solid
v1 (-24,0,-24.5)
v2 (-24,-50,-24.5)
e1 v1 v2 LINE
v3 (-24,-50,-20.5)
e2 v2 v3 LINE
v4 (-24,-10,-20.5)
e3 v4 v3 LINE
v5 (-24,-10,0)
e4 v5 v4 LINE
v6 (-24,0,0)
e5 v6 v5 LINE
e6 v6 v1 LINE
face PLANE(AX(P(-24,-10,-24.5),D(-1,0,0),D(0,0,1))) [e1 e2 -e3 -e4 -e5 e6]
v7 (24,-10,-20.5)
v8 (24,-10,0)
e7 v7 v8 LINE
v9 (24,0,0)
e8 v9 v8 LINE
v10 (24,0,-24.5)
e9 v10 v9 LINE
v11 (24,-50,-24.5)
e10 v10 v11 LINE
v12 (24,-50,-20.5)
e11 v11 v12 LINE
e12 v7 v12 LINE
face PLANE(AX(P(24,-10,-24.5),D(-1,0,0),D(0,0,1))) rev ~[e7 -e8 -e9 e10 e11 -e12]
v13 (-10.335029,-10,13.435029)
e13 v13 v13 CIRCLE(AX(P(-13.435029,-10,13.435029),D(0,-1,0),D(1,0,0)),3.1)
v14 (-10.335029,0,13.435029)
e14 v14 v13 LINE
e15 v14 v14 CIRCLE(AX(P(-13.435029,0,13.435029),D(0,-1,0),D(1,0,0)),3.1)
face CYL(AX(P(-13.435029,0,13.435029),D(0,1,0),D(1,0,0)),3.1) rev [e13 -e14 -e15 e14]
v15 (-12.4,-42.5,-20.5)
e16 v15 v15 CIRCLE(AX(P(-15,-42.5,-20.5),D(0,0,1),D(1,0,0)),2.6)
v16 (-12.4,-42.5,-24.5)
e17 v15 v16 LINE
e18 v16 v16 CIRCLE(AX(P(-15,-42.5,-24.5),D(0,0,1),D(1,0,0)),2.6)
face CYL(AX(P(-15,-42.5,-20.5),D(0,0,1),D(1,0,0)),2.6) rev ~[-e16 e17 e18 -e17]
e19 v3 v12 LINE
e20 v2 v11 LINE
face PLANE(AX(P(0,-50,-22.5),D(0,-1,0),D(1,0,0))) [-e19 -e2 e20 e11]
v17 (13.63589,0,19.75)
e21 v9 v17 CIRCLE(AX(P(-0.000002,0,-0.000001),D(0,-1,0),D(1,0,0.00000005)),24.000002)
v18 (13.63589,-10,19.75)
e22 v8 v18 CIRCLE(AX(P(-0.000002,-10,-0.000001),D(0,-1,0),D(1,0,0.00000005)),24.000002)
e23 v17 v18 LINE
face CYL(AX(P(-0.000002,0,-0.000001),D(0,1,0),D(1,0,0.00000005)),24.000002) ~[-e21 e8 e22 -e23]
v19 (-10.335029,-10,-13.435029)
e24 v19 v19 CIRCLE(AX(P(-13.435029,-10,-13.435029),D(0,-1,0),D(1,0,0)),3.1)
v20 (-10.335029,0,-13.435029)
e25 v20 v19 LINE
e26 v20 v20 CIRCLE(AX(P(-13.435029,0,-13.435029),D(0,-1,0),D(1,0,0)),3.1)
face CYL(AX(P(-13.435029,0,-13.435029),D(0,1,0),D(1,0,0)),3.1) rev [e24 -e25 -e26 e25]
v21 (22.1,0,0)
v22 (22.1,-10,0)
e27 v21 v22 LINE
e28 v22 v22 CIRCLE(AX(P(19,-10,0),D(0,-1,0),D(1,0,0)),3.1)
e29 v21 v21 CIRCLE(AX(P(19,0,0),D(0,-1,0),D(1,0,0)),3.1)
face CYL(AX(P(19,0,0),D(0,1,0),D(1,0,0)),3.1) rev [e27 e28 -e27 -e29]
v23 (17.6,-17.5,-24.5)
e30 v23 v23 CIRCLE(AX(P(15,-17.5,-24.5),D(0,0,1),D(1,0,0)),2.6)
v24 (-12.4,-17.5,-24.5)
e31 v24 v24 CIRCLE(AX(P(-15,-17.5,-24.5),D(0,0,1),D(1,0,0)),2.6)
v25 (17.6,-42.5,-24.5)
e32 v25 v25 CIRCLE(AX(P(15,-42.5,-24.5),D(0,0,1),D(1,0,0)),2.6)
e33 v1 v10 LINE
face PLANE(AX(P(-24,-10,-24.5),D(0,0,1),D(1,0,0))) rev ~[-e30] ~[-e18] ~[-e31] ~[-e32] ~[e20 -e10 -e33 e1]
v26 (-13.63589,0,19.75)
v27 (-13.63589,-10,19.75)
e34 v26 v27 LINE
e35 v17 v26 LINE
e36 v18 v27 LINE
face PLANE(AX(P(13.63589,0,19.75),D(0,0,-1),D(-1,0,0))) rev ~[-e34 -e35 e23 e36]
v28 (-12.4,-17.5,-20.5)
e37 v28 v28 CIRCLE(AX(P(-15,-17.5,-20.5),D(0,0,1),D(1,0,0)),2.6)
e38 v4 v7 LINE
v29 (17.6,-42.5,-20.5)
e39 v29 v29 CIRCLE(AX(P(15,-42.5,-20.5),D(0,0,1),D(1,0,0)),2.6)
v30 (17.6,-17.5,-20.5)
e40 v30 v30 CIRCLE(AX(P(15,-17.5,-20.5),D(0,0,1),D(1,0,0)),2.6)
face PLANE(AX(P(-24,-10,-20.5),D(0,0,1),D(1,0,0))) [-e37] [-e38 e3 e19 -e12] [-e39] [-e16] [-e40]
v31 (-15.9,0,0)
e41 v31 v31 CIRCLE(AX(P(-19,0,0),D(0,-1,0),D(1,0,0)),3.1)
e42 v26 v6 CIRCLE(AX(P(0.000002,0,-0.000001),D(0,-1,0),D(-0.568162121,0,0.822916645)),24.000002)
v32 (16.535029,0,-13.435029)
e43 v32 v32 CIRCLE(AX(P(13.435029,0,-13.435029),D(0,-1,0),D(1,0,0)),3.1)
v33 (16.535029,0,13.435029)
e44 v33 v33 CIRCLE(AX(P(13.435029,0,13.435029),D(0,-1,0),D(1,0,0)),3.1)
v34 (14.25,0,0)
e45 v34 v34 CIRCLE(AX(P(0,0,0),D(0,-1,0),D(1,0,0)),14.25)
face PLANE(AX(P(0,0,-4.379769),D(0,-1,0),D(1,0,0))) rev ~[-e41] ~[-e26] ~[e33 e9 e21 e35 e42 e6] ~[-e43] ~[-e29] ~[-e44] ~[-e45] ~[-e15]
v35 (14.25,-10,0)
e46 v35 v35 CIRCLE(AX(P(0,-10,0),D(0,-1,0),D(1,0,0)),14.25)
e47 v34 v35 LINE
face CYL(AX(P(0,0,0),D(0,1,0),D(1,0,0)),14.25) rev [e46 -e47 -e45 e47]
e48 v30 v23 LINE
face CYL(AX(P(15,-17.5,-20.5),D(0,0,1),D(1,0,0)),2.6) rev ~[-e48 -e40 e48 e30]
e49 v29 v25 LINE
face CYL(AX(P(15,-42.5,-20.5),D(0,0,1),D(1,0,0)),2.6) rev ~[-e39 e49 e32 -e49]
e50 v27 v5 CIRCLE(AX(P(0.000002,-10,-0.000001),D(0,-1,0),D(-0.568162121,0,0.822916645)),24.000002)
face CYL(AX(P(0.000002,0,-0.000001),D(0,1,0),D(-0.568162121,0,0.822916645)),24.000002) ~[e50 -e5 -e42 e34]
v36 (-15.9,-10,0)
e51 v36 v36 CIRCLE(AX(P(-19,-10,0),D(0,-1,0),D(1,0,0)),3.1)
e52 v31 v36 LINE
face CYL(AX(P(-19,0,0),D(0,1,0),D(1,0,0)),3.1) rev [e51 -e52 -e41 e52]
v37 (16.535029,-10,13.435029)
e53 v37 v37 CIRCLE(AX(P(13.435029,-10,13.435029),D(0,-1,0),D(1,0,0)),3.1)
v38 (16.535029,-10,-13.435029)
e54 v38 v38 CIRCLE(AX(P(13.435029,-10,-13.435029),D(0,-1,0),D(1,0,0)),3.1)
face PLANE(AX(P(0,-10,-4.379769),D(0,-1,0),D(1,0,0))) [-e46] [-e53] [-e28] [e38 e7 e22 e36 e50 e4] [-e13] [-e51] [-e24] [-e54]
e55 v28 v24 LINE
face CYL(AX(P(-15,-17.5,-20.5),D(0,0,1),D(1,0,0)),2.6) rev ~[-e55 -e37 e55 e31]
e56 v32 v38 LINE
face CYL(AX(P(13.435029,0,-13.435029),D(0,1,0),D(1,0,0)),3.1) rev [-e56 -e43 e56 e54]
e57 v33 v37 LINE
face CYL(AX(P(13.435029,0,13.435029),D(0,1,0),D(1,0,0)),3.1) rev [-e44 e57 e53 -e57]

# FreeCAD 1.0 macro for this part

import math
import FreeCAD as App
import Part
import Sketcher
Q = App.Units.Quantity


def add_polygon(sketch, points):
    """Adds a closed chain of lines whose ends are joined by coincident constraints."""
    first, n = sketch.GeometryCount, len(points)
    for a, b in zip(points, points[1:] + points[:1]):
        sketch.addGeometry(Part.LineSegment(App.Vector(*a, 0), App.Vector(*b, 0)), False)
    for i in range(n):
        sketch.addConstraint(Sketcher.Constraint("Coincident", first + i, 2, first + (i + 1) % n, 1))

doc = App.newDocument("Part")
body = doc.addObject("PartDesign::Body", "Body")

# Sketch on XZ plane
sketch1 = doc.addObject("Sketcher::SketchObject", "Sketch")
body.addObject(sketch1)
sketch1.AttachmentSupport = (doc.XZ_Plane, [""])
sketch1.MapMode = "FlatFace"
sketch1.addGeometry([
    Part.LineSegment(App.Vector(13.6, 19.8, 0), App.Vector(-13.6, 19.8, 0)),  # 0
    Part.ArcOfCircle(Part.Circle(App.Vector(0, 0, 0), App.Vector(0, 0, 1), 24), math.radians(125), math.radians(180)),  # 1
    Part.LineSegment(App.Vector(-24, 0, 0), App.Vector(-24, -24.5, 0)),  # 2
    Part.LineSegment(App.Vector(-24, -24.5, 0), App.Vector(24, -24.5, 0)),  # 3
    Part.LineSegment(App.Vector(24, -24.5, 0), App.Vector(24, 0, 0)),  # 4
    Part.ArcOfCircle(Part.Circle(App.Vector(0, 0, 0), App.Vector(0, 0, 1), 24), math.radians(0), math.radians(55)),  # 5
    Part.Circle(App.Vector(-13.4, -13.4, 0), App.Vector(0, 0, 1), 3.1),  # 6
    Part.Circle(App.Vector(13.4, -13.4, 0), App.Vector(0, 0, 1), 3.1),  # 7
    Part.Circle(App.Vector(-19, 0, 0), App.Vector(0, 0, 1), 3.1),  # 8
    Part.Circle(App.Vector(-13.4, 13.4, 0), App.Vector(0, 0, 1), 3.1),  # 9
    Part.Circle(App.Vector(0, 0, 0), App.Vector(0, 0, 1), 14.2),  # 10
    Part.Circle(App.Vector(19, 0, 0), App.Vector(0, 0, 1), 3.1),  # 11
    Part.Circle(App.Vector(13.4, 13.4, 0), App.Vector(0, 0, 1), 3.1),  # 12
], False)
sketch1.addConstraint([
    Sketcher.Constraint("Coincident", 0, 2, 1, 1),
    Sketcher.Constraint("Tangent", 1, 2, 2, 1),
    Sketcher.Constraint("Coincident", 2, 2, 3, 1),
    Sketcher.Constraint("Coincident", 3, 2, 4, 1),
    Sketcher.Constraint("Tangent", 4, 2, 5, 1),
    Sketcher.Constraint("Coincident", 5, 2, 0, 1),
    Sketcher.Constraint("Horizontal", 0),
    Sketcher.Constraint("Vertical", 2),
    Sketcher.Constraint("Horizontal", 3),
    Sketcher.Constraint("Vertical", 4),
    Sketcher.Constraint("Coincident", 1, 3, -1, 1),
    Sketcher.Constraint("Coincident", 5, 3, -1, 1),
    Sketcher.Constraint("Coincident", 10, 3, -1, 1),
    Sketcher.Constraint("Equal", 1, 5),
    Sketcher.Constraint("Equal", 6, 7),
    Sketcher.Constraint("Equal", 7, 8),
    Sketcher.Constraint("Equal", 8, 9),
    Sketcher.Constraint("Equal", 9, 11),
    Sketcher.Constraint("Equal", 11, 12),
    Sketcher.Constraint("Symmetric", 7, 3, 9, 3, -1, 1),
    Sketcher.Constraint("Symmetric", 8, 3, 11, 3, -1, 1),
    Sketcher.Constraint("Symmetric", 6, 3, 12, 3, -1, 1),
    Sketcher.Constraint("Symmetric", 6, 3, 7, 3, -2),
    Sketcher.Constraint("PointOnObject", 8, 3, -1),
    Sketcher.Constraint("Diameter", 6, Q("6.2 mm")),
    Sketcher.Constraint("Diameter", 10, Q("28.5 mm")),
    Sketcher.Constraint("DistanceX", 3, 1, 3, 2, Q("48 mm")),
    Sketcher.Constraint("DistanceY", 2, 2, 2, 1, Q("24.5 mm")),
    Sketcher.Constraint("DistanceX", 8, 3, -1, 1, Q("19 mm")),
    Sketcher.Constraint("DistanceY", -1, 1, 0, 2, Q("19.75 mm")),
    Sketcher.Constraint("DistanceX", 6, 3, -1, 1, Q("13.435029 mm")),
    Sketcher.Constraint("DistanceY", 6, 3, -1, 1, Q("13.435029 mm")),
])
pad1 = doc.addObject("PartDesign::Pad", "Pad")
body.addObject(pad1)
pad1.Profile = sketch1
pad1.Length = 10

# Sketch on XZ plane
sketch2 = doc.addObject("Sketcher::SketchObject", "Sketch001")
body.addObject(sketch2)
sketch2.AttachmentSupport = (doc.XZ_Plane, [""])
sketch2.MapMode = "FlatFace"
sketch2.AttachmentOffset = App.Placement(App.Vector(0, 0, 10), App.Rotation())
add_polygon(sketch2, [(-24, -20.5), (-24, -24.5), (24, -24.5), (24, -20.5)])  # lines 0-3
sketch2.addConstraint([
    Sketcher.Constraint("Vertical", 0),
    Sketcher.Constraint("Horizontal", 1),
    Sketcher.Constraint("Vertical", 2),
    Sketcher.Constraint("Horizontal", 3),
    Sketcher.Constraint("DistanceX", 1, 1, 1, 2, Q("48 mm")),
    Sketcher.Constraint("DistanceY", 0, 2, 0, 1, Q("4 mm")),
    Sketcher.Constraint("DistanceX", 0, 2, -1, 1, Q("24 mm")),
    Sketcher.Constraint("DistanceY", 0, 2, -1, 1, Q("24.5 mm")),
])
pad2 = doc.addObject("PartDesign::Pad", "Pad001")
body.addObject(pad2)
pad2.Profile = sketch2
pad2.Length = 40

# Sketch on XY plane
sketch3 = doc.addObject("Sketcher::SketchObject", "Sketch002")
body.addObject(sketch3)
sketch3.AttachmentSupport = (doc.XY_Plane, [""])
sketch3.MapMode = "FlatFace"
sketch3.AttachmentOffset = App.Placement(App.Vector(0, 0, -20.5), App.Rotation())
sketch3.addGeometry([
    Part.Circle(App.Vector(-15, -17.5, 0), App.Vector(0, 0, 1), 2.6),
    Part.Circle(App.Vector(-15, -42.5, 0), App.Vector(0, 0, 1), 2.6),
    Part.Circle(App.Vector(15, -42.5, 0), App.Vector(0, 0, 1), 2.6),
    Part.Circle(App.Vector(15, -17.5, 0), App.Vector(0, 0, 1), 2.6),
], False)
sketch3.addConstraint([
    Sketcher.Constraint("Equal", 0, 1),
    Sketcher.Constraint("Equal", 1, 2),
    Sketcher.Constraint("Equal", 2, 3),
    Sketcher.Constraint("Symmetric", 1, 3, 2, 3, -2),
    Sketcher.Constraint("Symmetric", 0, 3, 3, 3, -2),
    Sketcher.Constraint("Vertical", 0, 3, 1, 3),
    Sketcher.Constraint("Diameter", 0, Q("5.2 mm")),
    Sketcher.Constraint("DistanceX", 0, 3, -1, 1, Q("15 mm")),
    Sketcher.Constraint("DistanceY", 1, 3, 0, 3, Q("25 mm")),
    Sketcher.Constraint("DistanceY", 0, 3, -1, 1, Q("17.5 mm")),
])
pocket1 = doc.addObject("PartDesign::Pocket", "Pocket")
body.addObject(pocket1)
pocket1.Profile = sketch3
pocket1.Type = "ThroughAll"

doc.recompute()
